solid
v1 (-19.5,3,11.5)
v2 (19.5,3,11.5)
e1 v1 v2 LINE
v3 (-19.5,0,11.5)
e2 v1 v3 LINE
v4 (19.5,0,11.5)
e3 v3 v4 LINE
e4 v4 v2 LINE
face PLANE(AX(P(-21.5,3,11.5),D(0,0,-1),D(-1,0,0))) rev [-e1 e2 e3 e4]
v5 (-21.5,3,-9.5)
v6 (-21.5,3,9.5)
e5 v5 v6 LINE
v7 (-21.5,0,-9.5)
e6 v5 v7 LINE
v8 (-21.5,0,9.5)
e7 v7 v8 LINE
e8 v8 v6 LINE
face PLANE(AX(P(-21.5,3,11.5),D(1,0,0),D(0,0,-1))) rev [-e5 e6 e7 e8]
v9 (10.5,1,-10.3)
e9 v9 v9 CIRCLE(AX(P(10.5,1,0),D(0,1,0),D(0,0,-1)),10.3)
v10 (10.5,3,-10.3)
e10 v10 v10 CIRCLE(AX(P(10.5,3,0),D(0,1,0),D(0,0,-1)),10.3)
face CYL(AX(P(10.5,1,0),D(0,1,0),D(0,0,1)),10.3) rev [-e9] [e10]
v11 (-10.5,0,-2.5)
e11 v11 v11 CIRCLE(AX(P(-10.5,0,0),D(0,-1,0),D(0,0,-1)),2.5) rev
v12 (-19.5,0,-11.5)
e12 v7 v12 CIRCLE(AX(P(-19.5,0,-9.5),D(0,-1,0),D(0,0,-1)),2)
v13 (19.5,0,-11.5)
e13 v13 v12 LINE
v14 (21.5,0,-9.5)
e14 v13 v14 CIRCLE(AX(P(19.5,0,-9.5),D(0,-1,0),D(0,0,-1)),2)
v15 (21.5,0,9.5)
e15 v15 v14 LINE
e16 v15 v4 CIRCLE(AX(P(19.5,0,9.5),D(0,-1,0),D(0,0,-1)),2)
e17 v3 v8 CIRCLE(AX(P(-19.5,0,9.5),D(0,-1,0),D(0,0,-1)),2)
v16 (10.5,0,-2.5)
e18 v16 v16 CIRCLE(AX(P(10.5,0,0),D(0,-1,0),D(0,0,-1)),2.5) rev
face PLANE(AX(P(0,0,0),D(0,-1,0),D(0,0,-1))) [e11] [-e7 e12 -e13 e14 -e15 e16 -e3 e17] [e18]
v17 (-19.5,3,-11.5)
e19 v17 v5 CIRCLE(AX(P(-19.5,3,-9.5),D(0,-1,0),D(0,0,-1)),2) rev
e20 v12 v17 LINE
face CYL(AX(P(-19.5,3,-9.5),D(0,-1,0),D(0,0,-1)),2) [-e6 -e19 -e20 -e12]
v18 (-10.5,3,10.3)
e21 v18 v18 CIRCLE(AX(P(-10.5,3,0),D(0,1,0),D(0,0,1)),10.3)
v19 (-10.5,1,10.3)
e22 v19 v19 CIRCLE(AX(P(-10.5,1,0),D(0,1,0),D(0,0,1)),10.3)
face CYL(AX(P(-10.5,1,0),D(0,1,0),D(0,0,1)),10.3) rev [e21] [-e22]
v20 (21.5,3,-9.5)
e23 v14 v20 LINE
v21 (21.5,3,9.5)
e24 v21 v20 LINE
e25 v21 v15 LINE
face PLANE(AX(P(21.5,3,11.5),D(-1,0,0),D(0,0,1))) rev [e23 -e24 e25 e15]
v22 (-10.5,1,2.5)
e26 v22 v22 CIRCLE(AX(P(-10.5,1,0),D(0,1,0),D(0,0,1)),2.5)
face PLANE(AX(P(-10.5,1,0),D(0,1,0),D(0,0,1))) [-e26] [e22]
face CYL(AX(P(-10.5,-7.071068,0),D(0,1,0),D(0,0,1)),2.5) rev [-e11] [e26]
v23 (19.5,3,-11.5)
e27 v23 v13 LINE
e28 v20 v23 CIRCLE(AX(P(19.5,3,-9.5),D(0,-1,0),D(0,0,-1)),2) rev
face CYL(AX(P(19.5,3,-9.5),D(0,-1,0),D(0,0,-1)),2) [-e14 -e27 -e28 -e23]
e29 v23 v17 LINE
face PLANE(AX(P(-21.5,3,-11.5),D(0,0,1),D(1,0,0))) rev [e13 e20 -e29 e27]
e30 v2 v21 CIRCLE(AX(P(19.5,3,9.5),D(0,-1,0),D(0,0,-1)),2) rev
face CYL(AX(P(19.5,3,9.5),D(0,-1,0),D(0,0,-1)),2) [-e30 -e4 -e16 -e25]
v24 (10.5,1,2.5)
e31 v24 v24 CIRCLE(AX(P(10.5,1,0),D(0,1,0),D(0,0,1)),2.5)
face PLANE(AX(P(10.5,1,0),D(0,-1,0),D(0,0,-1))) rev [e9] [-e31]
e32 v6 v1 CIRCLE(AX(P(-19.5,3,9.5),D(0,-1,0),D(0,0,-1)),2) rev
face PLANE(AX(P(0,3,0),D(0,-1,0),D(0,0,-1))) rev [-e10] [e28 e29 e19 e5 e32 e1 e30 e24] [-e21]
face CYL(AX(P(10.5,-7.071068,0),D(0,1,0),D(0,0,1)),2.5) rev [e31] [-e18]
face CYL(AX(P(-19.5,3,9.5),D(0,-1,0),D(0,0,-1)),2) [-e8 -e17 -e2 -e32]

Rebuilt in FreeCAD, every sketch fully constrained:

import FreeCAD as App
import Part
import Sketcher
from FreeCAD import Vector


def edges_at(feature, points):
    """Names of the edges that pass closest to the given points."""
    edges = feature.Shape.Edges
    near = lambda p: min(range(len(edges)), key=lambda i: edges[i].distToShape(Part.Vertex(*p))[0])
    return sorted({f"Edge{near(p) + 1}" for p in points})


def add_polygon(sketch, points):
    """Adds a closed chain of lines whose ends are joined by coincident constraints."""
    first, n = sketch.GeometryCount, len(points)
    for a, b in zip(points, points[1:] + points[:1]):
        sketch.addGeometry(Part.LineSegment(App.Vector(*a, 0), App.Vector(*b, 0)), False)
    for i in range(n):
        sketch.addConstraint(Sketcher.Constraint("Coincident", first + i, 2, first + (i + 1) % n, 1))

doc = App.newDocument("Part")
params = doc.addObject("Spreadsheet::Sheet", "Params")
for row, (alias, value) in enumerate([
    ("sketch1_width", "43 mm"),
    ("sketch1_height", "23 mm"),
    ("pad1_length", "3 mm"),
    ("fillet_radius", "2 mm"),
    ("sketch2_diameter", "20.6 mm"),
    ("pocket1_length", "2 mm"),
    ("sketch3_diameter", "5 mm"),
    ("pocket2_length", "1 mm"),
], start=1):
    params.set(f"A{row}", alias)
    params.set(f"B{row}", "=" + value)
    params.setAlias(f"B{row}", alias)

body = doc.addObject("PartDesign::Body", "Body")

sketch1 = doc.addObject("Sketcher::SketchObject", "Sketch")
body.addObject(sketch1)
sketch1.AttachmentSupport = (doc.XZ_Plane, [""])
sketch1.MapMode = "FlatFace"
add_polygon(sketch1, [(-22, -12), (-22, 12), (22, 12), (22, -12)])
sketch1.addConstraint([
    Sketcher.Constraint("Vertical", 0),
    Sketcher.Constraint("Horizontal", 1),
    Sketcher.Constraint("Vertical", 2),
    Sketcher.Constraint("Horizontal", 3),
    Sketcher.Constraint("Symmetric", 0, 2, 2, 2, -1, 1),
    Sketcher.Constraint("DistanceX", 1, 1, 1, 2, 43.0),
    Sketcher.Constraint("DistanceY", 0, 1, 0, 2, 23.0),
])
sketch1.setExpression("Constraints[9]", "Params.sketch1_width")
sketch1.setExpression("Constraints[10]", "Params.sketch1_height")
pad1 = doc.addObject("PartDesign::Pad", "Pad")
body.addObject(pad1)
pad1.Profile = sketch1
pad1.setExpression("Length", "Params.pad1_length")
pad1.Reversed = True
doc.recompute()

fillet = doc.addObject("PartDesign::Fillet", "Fillet")
body.addObject(fillet)
fillet.Base = (pad1, edges_at(pad1, [
    (21.5, 1.5, 11.5),
    (-21.5, 1.5, 11.5),
    (-21.5, 1.5, -11.5),
    (21.5, 1.5, -11.5),
]))
fillet.setExpression("Radius", "Params.fillet_radius")

sketch2 = doc.addObject("Sketcher::SketchObject", "Sketch001")
body.addObject(sketch2)
sketch2.AttachmentSupport = (doc.XZ_Plane, [""])
sketch2.MapMode = "FlatFace"
sketch2.AttachmentOffset = App.Placement(Vector(0, 0, -3), App.Rotation())
sketch2.addGeometry([
    Part.Circle(Vector(-10, 0, 0), Vector(0, 0, 1), 10),
    Part.Circle(Vector(10, 0, 0), Vector(0, 0, 1), 10),
], False)
sketch2.addConstraint([
    Sketcher.Constraint("Equal", 0, 1),
    Sketcher.Constraint("Symmetric", 0, 3, 1, 3, -1, 1),
    Sketcher.Constraint("PointOnObject", 0, 3, -1),
    Sketcher.Constraint("Diameter", 0, 20.6),
    Sketcher.Constraint("DistanceX", 0, 3, 1, 3, 21.0),
])
sketch2.setExpression("Constraints[3]", "Params.sketch2_diameter")
pocket1 = doc.addObject("PartDesign::Pocket", "Pocket")
body.addObject(pocket1)
pocket1.Profile = sketch2
pocket1.setExpression("Length", "Params.pocket1_length")
pocket1.Reversed = True

sketch3 = doc.addObject("Sketcher::SketchObject", "Sketch002")
body.addObject(sketch3)
sketch3.AttachmentSupport = (doc.XZ_Plane, [""])
sketch3.MapMode = "FlatFace"
sketch3.AttachmentOffset = App.Placement(Vector(0, 0, -1), App.Rotation())
sketch3.addGeometry([
    Part.Circle(Vector(-10.5, 0, 0), Vector(0, 0, 1), 2.5),
    Part.Circle(Vector(10.5, 0, 0), Vector(0, 0, 1), 2.5),
], False)
sketch3.addConstraint([
    Sketcher.Constraint("Equal", 0, 1),
    Sketcher.Constraint("Symmetric", 0, 3, 1, 3, -1, 1),
    Sketcher.Constraint("PointOnObject", 0, 3, -1),
    Sketcher.Constraint("Diameter", 0, 5.0),
    Sketcher.Constraint("DistanceX", 0, 3, 1, 3, 21.0),
])
sketch3.setExpression("Constraints[3]", "Params.sketch3_diameter")
pocket2 = doc.addObject("PartDesign::Pocket", "Pocket001")
body.addObject(pocket2)
pocket2.Profile = sketch3
pocket2.setExpression("Length", "Params.pocket2_length")
pocket2.Reversed = True

doc.recompute()
